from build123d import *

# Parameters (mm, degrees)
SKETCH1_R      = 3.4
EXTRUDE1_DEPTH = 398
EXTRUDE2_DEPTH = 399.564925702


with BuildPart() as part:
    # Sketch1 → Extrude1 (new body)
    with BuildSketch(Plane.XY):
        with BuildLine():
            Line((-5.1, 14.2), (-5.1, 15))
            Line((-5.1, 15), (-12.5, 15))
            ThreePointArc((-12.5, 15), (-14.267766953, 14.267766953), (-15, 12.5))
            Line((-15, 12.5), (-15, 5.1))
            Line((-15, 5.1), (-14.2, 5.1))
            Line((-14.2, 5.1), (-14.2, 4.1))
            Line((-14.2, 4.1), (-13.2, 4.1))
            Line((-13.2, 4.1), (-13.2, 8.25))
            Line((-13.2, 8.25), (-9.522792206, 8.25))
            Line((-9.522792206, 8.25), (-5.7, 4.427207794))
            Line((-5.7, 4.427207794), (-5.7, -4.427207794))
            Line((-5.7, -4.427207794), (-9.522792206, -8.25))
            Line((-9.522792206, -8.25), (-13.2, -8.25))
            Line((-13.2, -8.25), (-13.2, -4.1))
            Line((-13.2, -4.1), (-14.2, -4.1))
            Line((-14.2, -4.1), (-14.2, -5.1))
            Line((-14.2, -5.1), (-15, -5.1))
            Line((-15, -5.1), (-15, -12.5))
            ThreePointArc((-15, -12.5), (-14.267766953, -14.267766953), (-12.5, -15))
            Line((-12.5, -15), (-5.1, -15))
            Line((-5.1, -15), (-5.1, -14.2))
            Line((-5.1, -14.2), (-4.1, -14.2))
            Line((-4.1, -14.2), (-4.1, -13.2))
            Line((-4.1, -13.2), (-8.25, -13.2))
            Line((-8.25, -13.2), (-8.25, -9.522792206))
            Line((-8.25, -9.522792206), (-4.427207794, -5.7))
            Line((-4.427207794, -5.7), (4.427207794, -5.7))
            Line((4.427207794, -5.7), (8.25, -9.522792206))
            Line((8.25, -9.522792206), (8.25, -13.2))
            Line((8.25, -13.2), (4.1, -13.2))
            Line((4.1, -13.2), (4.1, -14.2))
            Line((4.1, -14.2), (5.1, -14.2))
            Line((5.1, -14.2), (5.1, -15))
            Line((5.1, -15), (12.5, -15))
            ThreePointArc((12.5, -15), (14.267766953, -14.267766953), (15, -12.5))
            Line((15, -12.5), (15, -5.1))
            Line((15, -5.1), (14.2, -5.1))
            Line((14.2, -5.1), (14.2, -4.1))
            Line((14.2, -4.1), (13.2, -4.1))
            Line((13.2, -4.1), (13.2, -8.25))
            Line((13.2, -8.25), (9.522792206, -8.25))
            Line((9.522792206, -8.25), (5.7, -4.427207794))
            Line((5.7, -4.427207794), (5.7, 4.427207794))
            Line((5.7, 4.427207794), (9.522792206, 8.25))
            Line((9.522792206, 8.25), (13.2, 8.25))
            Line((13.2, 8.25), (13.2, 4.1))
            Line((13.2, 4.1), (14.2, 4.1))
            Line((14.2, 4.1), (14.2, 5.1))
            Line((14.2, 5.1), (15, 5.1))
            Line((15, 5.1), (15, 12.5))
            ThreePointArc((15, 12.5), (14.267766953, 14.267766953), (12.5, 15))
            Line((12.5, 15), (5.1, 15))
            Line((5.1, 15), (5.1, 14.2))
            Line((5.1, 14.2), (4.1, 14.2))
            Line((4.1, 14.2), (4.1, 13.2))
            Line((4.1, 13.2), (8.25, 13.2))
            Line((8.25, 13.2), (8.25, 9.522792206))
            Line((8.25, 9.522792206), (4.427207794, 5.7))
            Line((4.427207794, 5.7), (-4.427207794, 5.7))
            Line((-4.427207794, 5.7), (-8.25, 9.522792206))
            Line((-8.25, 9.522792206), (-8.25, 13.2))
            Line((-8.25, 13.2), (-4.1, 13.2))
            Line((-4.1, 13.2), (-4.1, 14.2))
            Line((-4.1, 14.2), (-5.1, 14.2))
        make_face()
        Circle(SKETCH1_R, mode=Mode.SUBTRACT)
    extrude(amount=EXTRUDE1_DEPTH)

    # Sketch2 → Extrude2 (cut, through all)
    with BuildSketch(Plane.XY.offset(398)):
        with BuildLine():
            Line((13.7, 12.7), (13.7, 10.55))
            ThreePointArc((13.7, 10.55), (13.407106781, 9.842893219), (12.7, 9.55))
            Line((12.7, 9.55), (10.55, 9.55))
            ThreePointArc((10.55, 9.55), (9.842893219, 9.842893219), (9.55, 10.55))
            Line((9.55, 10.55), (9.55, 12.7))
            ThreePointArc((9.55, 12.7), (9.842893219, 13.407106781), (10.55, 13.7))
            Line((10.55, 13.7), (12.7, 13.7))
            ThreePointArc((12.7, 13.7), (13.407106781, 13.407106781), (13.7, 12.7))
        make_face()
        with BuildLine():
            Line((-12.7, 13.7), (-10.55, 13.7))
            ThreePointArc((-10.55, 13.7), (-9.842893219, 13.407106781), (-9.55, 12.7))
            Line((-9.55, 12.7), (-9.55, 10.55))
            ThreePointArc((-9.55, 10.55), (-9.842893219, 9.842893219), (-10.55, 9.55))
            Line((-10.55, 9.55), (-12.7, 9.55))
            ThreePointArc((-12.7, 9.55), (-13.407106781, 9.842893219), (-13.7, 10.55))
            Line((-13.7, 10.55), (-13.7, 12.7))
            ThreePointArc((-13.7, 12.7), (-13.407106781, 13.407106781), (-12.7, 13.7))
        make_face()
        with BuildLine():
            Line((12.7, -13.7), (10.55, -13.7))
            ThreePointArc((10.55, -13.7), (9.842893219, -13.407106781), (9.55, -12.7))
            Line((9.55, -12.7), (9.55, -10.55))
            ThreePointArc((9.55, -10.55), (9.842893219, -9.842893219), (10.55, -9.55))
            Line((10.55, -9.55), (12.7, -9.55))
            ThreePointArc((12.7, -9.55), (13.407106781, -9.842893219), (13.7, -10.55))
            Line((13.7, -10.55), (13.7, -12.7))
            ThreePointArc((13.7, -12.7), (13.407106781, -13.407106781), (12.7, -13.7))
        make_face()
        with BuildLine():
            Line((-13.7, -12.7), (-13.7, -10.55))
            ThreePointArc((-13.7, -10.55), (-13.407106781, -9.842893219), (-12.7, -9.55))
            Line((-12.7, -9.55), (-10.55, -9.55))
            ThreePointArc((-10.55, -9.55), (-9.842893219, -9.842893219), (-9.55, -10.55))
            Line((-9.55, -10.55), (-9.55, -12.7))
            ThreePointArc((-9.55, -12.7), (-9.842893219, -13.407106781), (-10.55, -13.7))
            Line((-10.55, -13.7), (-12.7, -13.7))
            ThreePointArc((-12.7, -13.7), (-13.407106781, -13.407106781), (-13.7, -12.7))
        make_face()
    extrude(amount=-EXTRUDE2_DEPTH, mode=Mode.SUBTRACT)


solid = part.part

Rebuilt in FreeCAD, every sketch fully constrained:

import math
import FreeCAD as App
import Part
import Sketcher

V = App.Vector
Q = App.Units.Quantity

doc = App.newDocument("Part")
body = doc.addObject("PartDesign::Body", "Body")

# Sketch on XY plane
sketch1 = body.newObject("Sketcher::SketchObject", "Sketch")
sketch1.AttachmentSupport = (doc.getObject("XY_Plane"), [""])
sketch1.MapMode = "FlatFace"
sketch1.addGeometry([
    Part.LineSegment(V(-5.1, 14.2, 0), V(-5.1, 15, 0)),  # 0
    Part.LineSegment(V(-5.1, 15, 0), V(-12.5, 15, 0)),  # 1
    Part.ArcOfCircle(Part.Circle(V(-12.5, 12.5, 0), V(0, 0, 1), 2.5), math.radians(90), math.radians(180)),  # 2
    Part.LineSegment(V(-15, 12.5, 0), V(-15, 5.1, 0)),  # 3
    Part.LineSegment(V(-15, 5.1, 0), V(-14.2, 5.1, 0)),  # 4
    Part.LineSegment(V(-14.2, 5.1, 0), V(-14.2, 4.1, 0)),  # 5
    Part.LineSegment(V(-14.2, 4.1, 0), V(-13.2, 4.1, 0)),  # 6
    Part.LineSegment(V(-13.2, 4.1, 0), V(-13.2, 8.2, 0)),  # 7
    Part.LineSegment(V(-13.2, 8.2, 0), V(-9.5, 8.2, 0)),  # 8
    Part.LineSegment(V(-9.5, 8.2, 0), V(-5.7, 4.4, 0)),  # 9
    Part.LineSegment(V(-5.7, 4.4, 0), V(-5.7, -4.4, 0)),  # 10
    Part.LineSegment(V(-5.7, -4.4, 0), V(-9.5, -8.2, 0)),  # 11
    Part.LineSegment(V(-9.5, -8.2, 0), V(-13.2, -8.2, 0)),  # 12
    Part.LineSegment(V(-13.2, -8.2, 0), V(-13.2, -4.1, 0)),  # 13
    Part.LineSegment(V(-13.2, -4.1, 0), V(-14.2, -4.1, 0)),  # 14
    Part.LineSegment(V(-14.2, -4.1, 0), V(-14.2, -5.1, 0)),  # 15
    Part.LineSegment(V(-14.2, -5.1, 0), V(-15, -5.1, 0)),  # 16
    Part.LineSegment(V(-15, -5.1, 0), V(-15, -12.5, 0)),  # 17
    Part.ArcOfCircle(Part.Circle(V(-12.5, -12.5, 0), V(0, 0, 1), 2.5), math.radians(180), math.radians(270)),  # 18
    Part.LineSegment(V(-12.5, -15, 0), V(-5.1, -15, 0)),  # 19
    Part.LineSegment(V(-5.1, -15, 0), V(-5.1, -14.2, 0)),  # 20
    Part.LineSegment(V(-5.1, -14.2, 0), V(-4.1, -14.2, 0)),  # 21
    Part.LineSegment(V(-4.1, -14.2, 0), V(-4.1, -13.2, 0)),  # 22
    Part.LineSegment(V(-4.1, -13.2, 0), V(-8.2, -13.2, 0)),  # 23
    Part.LineSegment(V(-8.2, -13.2, 0), V(-8.2, -9.5, 0)),  # 24
    Part.LineSegment(V(-8.2, -9.5, 0), V(-4.4, -5.7, 0)),  # 25
    Part.LineSegment(V(-4.4, -5.7, 0), V(4.4, -5.7, 0)),  # 26
    Part.LineSegment(V(4.4, -5.7, 0), V(8.2, -9.5, 0)),  # 27
    Part.LineSegment(V(8.2, -9.5, 0), V(8.2, -13.2, 0)),  # 28
    Part.LineSegment(V(8.2, -13.2, 0), V(4.1, -13.2, 0)),  # 29
    Part.LineSegment(V(4.1, -13.2, 0), V(4.1, -14.2, 0)),  # 30
    Part.LineSegment(V(4.1, -14.2, 0), V(5.1, -14.2, 0)),  # 31
    Part.LineSegment(V(5.1, -14.2, 0), V(5.1, -15, 0)),  # 32
    Part.LineSegment(V(5.1, -15, 0), V(12.5, -15, 0)),  # 33
    Part.ArcOfCircle(Part.Circle(V(12.5, -12.5, 0), V(0, 0, 1), 2.5), math.radians(-90), math.radians(0)),  # 34
    Part.LineSegment(V(15, -12.5, 0), V(15, -5.1, 0)),  # 35
    Part.LineSegment(V(15, -5.1, 0), V(14.2, -5.1, 0)),  # 36
    Part.LineSegment(V(14.2, -5.1, 0), V(14.2, -4.1, 0)),  # 37
    Part.LineSegment(V(14.2, -4.1, 0), V(13.2, -4.1, 0)),  # 38
    Part.LineSegment(V(13.2, -4.1, 0), V(13.2, -8.2, 0)),  # 39
    Part.LineSegment(V(13.2, -8.2, 0), V(9.5, -8.2, 0)),  # 40
    Part.LineSegment(V(9.5, -8.2, 0), V(5.7, -4.4, 0)),  # 41
    Part.LineSegment(V(5.7, -4.4, 0), V(5.7, 4.4, 0)),  # 42
    Part.LineSegment(V(5.7, 4.4, 0), V(9.5, 8.2, 0)),  # 43
    Part.LineSegment(V(9.5, 8.2, 0), V(13.2, 8.2, 0)),  # 44
    Part.LineSegment(V(13.2, 8.2, 0), V(13.2, 4.1, 0)),  # 45
    Part.LineSegment(V(13.2, 4.1, 0), V(14.2, 4.1, 0)),  # 46
    Part.LineSegment(V(14.2, 4.1, 0), V(14.2, 5.1, 0)),  # 47
    Part.LineSegment(V(14.2, 5.1, 0), V(15, 5.1, 0)),  # 48
    Part.LineSegment(V(15, 5.1, 0), V(15, 12.5, 0)),  # 49
    Part.ArcOfCircle(Part.Circle(V(12.5, 12.5, 0), V(0, 0, 1), 2.5), math.radians(0), math.radians(90)),  # 50
    Part.LineSegment(V(12.5, 15, 0), V(5.1, 15, 0)),  # 51
    Part.LineSegment(V(5.1, 15, 0), V(5.1, 14.2, 0)),  # 52
    Part.LineSegment(V(5.1, 14.2, 0), V(4.1, 14.2, 0)),  # 53
    Part.LineSegment(V(4.1, 14.2, 0), V(4.1, 13.2, 0)),  # 54
    Part.LineSegment(V(4.1, 13.2, 0), V(8.2, 13.2, 0)),  # 55
    Part.LineSegment(V(8.2, 13.2, 0), V(8.2, 9.5, 0)),  # 56
    Part.LineSegment(V(8.2, 9.5, 0), V(4.4, 5.7, 0)),  # 57
    Part.LineSegment(V(4.4, 5.7, 0), V(-4.4, 5.7, 0)),  # 58
    Part.LineSegment(V(-4.4, 5.7, 0), V(-8.2, 9.5, 0)),  # 59
    Part.LineSegment(V(-8.2, 9.5, 0), V(-8.2, 13.2, 0)),  # 60
    Part.LineSegment(V(-8.2, 13.2, 0), V(-4.1, 13.2, 0)),  # 61
    Part.LineSegment(V(-4.1, 13.2, 0), V(-4.1, 14.2, 0)),  # 62
    Part.LineSegment(V(-4.1, 14.2, 0), V(-5.1, 14.2, 0)),  # 63
    Part.Circle(V(0, 0, 0), V(0, 0, 1), 3.4),  # 64
], False)
sketch1.addConstraint([
    Sketcher.Constraint("Coincident", 0, 2, 1, 1),
    Sketcher.Constraint("Tangent", 1, 2, 2, 1),
    Sketcher.Constraint("Tangent", 2, 2, 3, 1),
    Sketcher.Constraint("Coincident", 3, 2, 4, 1),
    Sketcher.Constraint("Coincident", 4, 2, 5, 1),
    Sketcher.Constraint("Coincident", 5, 2, 6, 1),
    Sketcher.Constraint("Coincident", 6, 2, 7, 1),
    Sketcher.Constraint("Coincident", 7, 2, 8, 1),
    Sketcher.Constraint("Coincident", 8, 2, 9, 1),
    Sketcher.Constraint("Coincident", 9, 2, 10, 1),
    Sketcher.Constraint("Coincident", 10, 2, 11, 1),
    Sketcher.Constraint("Coincident", 11, 2, 12, 1),
    Sketcher.Constraint("Coincident", 12, 2, 13, 1),
    Sketcher.Constraint("Coincident", 13, 2, 14, 1),
    Sketcher.Constraint("Coincident", 14, 2, 15, 1),
    Sketcher.Constraint("Coincident", 15, 2, 16, 1),
    Sketcher.Constraint("Coincident", 16, 2, 17, 1),
    Sketcher.Constraint("Tangent", 17, 2, 18, 1),
    Sketcher.Constraint("Tangent", 18, 2, 19, 1),
    Sketcher.Constraint("Coincident", 19, 2, 20, 1),
    Sketcher.Constraint("Coincident", 20, 2, 21, 1),
    Sketcher.Constraint("Coincident", 21, 2, 22, 1),
    Sketcher.Constraint("Coincident", 22, 2, 23, 1),
    Sketcher.Constraint("Coincident", 23, 2, 24, 1),
    Sketcher.Constraint("Coincident", 24, 2, 25, 1),
    Sketcher.Constraint("Coincident", 25, 2, 26, 1),
    Sketcher.Constraint("Coincident", 26, 2, 27, 1),
    Sketcher.Constraint("Coincident", 27, 2, 28, 1),
    Sketcher.Constraint("Coincident", 28, 2, 29, 1),
    Sketcher.Constraint("Coincident", 29, 2, 30, 1),
    Sketcher.Constraint("Coincident", 30, 2, 31, 1),
    Sketcher.Constraint("Coincident", 31, 2, 32, 1),
    Sketcher.Constraint("Coincident", 32, 2, 33, 1),
    Sketcher.Constraint("Tangent", 33, 2, 34, 1),
    Sketcher.Constraint("Tangent", 34, 2, 35, 1),
    Sketcher.Constraint("Coincident", 35, 2, 36, 1),
    Sketcher.Constraint("Coincident", 36, 2, 37, 1),
    Sketcher.Constraint("Coincident", 37, 2, 38, 1),
    Sketcher.Constraint("Coincident", 38, 2, 39, 1),
    Sketcher.Constraint("Coincident", 39, 2, 40, 1),
    Sketcher.Constraint("Coincident", 40, 2, 41, 1),
    Sketcher.Constraint("Coincident", 41, 2, 42, 1),
    Sketcher.Constraint("Coincident", 42, 2, 43, 1),
    Sketcher.Constraint("Coincident", 43, 2, 44, 1),
    Sketcher.Constraint("Coincident", 44, 2, 45, 1),
    Sketcher.Constraint("Coincident", 45, 2, 46, 1),
    Sketcher.Constraint("Coincident", 46, 2, 47, 1),
    Sketcher.Constraint("Coincident", 47, 2, 48, 1),
    Sketcher.Constraint("Coincident", 48, 2, 49, 1),
    Sketcher.Constraint("Tangent", 49, 2, 50, 1),
    Sketcher.Constraint("Tangent", 50, 2, 51, 1),
    Sketcher.Constraint("Coincident", 51, 2, 52, 1),
    Sketcher.Constraint("Coincident", 52, 2, 53, 1),
    Sketcher.Constraint("Coincident", 53, 2, 54, 1),
    Sketcher.Constraint("Coincident", 54, 2, 55, 1),
    Sketcher.Constraint("Coincident", 55, 2, 56, 1),
    Sketcher.Constraint("Coincident", 56, 2, 57, 1),
    Sketcher.Constraint("Coincident", 57, 2, 58, 1),
    Sketcher.Constraint("Coincident", 58, 2, 59, 1),
    Sketcher.Constraint("Coincident", 59, 2, 60, 1),
    Sketcher.Constraint("Coincident", 60, 2, 61, 1),
    Sketcher.Constraint("Coincident", 61, 2, 62, 1),
    Sketcher.Constraint("Coincident", 62, 2, 63, 1),
    Sketcher.Constraint("Coincident", 63, 2, 0, 1),
    Sketcher.Constraint("Vertical", 0),
    Sketcher.Constraint("Horizontal", 1),
    Sketcher.Constraint("Vertical", 3),
    Sketcher.Constraint("Horizontal", 4),
    Sketcher.Constraint("Vertical", 5),
    Sketcher.Constraint("Horizontal", 6),
    Sketcher.Constraint("Vertical", 7),
    Sketcher.Constraint("Horizontal", 8),
    Sketcher.Constraint("Vertical", 10),
    Sketcher.Constraint("Horizontal", 12),
    Sketcher.Constraint("Vertical", 13),
    Sketcher.Constraint("Horizontal", 14),
    Sketcher.Constraint("Vertical", 15),
    Sketcher.Constraint("Horizontal", 16),
    Sketcher.Constraint("Vertical", 17),
    Sketcher.Constraint("Horizontal", 19),
    Sketcher.Constraint("Vertical", 20),
    Sketcher.Constraint("Horizontal", 21),
    Sketcher.Constraint("Vertical", 22),
    Sketcher.Constraint("Horizontal", 23),
    Sketcher.Constraint("Vertical", 24),
    Sketcher.Constraint("Horizontal", 26),
    Sketcher.Constraint("Vertical", 28),
    Sketcher.Constraint("Horizontal", 29),
    Sketcher.Constraint("Vertical", 30),
    Sketcher.Constraint("Horizontal", 31),
    Sketcher.Constraint("Vertical", 32),
    Sketcher.Constraint("Horizontal", 33),
    Sketcher.Constraint("Vertical", 35),
    Sketcher.Constraint("Horizontal", 36),
    Sketcher.Constraint("Vertical", 37),
    Sketcher.Constraint("Horizontal", 38),
    Sketcher.Constraint("Vertical", 39),
    Sketcher.Constraint("Horizontal", 40),
    Sketcher.Constraint("Vertical", 42),
    Sketcher.Constraint("Horizontal", 44),
    Sketcher.Constraint("Vertical", 45),
    Sketcher.Constraint("Horizontal", 46),
    Sketcher.Constraint("Vertical", 47),
    Sketcher.Constraint("Horizontal", 48),
    Sketcher.Constraint("Vertical", 49),
    Sketcher.Constraint("Horizontal", 51),
    Sketcher.Constraint("Vertical", 52),
    Sketcher.Constraint("Horizontal", 53),
    Sketcher.Constraint("Vertical", 54),
    Sketcher.Constraint("Horizontal", 55),
    Sketcher.Constraint("Vertical", 56),
    Sketcher.Constraint("Horizontal", 58),
    Sketcher.Constraint("Vertical", 60),
    Sketcher.Constraint("Horizontal", 61),
    Sketcher.Constraint("Vertical", 62),
    Sketcher.Constraint("Horizontal", 63),
    Sketcher.Constraint("Coincident", 64, 3, -1, 1),
    Sketcher.Constraint("Equal", 2, 18),
    Sketcher.Constraint("Equal", 18, 34),
    Sketcher.Constraint("Equal", 34, 50),
    Sketcher.Constraint("Symmetric", 2, 3, 34, 3, -1, 1),
    Sketcher.Constraint("Symmetric", 18, 3, 50, 3, -1, 1),
    Sketcher.Constraint("Symmetric", 4, 2, 36, 2, -1, 1),
    Sketcher.Constraint("Symmetric", 6, 2, 38, 2, -1, 1),
    Sketcher.Constraint("Symmetric", 8, 2, 40, 2, -1, 1),
    Sketcher.Constraint("Symmetric", 9, 2, 41, 2, -1, 1),
    Sketcher.Constraint("Symmetric", 11, 2, 43, 2, -1, 1),
    Sketcher.Constraint("Symmetric", 13, 2, 45, 2, -1, 1),
    Sketcher.Constraint("Symmetric", 15, 2, 47, 2, -1, 1),
    Sketcher.Constraint("Symmetric", 20, 2, 52, 2, -1, 1),
    Sketcher.Constraint("Symmetric", 22, 2, 54, 2, -1, 1),
    Sketcher.Constraint("Symmetric", 24, 2, 56, 2, -1, 1),
    Sketcher.Constraint("Symmetric", 25, 2, 57, 2, -1, 1),
    Sketcher.Constraint("Symmetric", 27, 2, 59, 2, -1, 1),
    Sketcher.Constraint("Symmetric", 29, 2, 61, 2, -1, 1),
    Sketcher.Constraint("Symmetric", 31, 2, 63, 2, -1, 1),
    Sketcher.Constraint("Symmetric", 18, 3, 34, 3, -2),
    Sketcher.Constraint("Symmetric", 24, 2, 27, 2, -2),
    Sketcher.Constraint("Symmetric", 22, 2, 29, 2, -2),
    Sketcher.Constraint("Symmetric", 20, 2, 31, 2, -2),
    Sketcher.Constraint("Symmetric", 15, 2, 36, 2, -2),
    Sketcher.Constraint("Symmetric", 13, 2, 38, 2, -2),
    Sketcher.Constraint("Symmetric", 11, 2, 40, 2, -2),
    Sketcher.Constraint("Perpendicular", 9, 11),
    Sketcher.Constraint("Parallel", 11, 25),
    Sketcher.Constraint("Perpendicular", 25, 27),
    Sketcher.Constraint("Perpendicular", 41, 43),
    Sketcher.Constraint("Perpendicular", 57, 59),
    Sketcher.Constraint("Horizontal", 10, 2, 41, 2),
    Sketcher.Constraint("Equal", 14, 21),
    Sketcher.Constraint("Equal", 48, 0),
    Sketcher.Constraint("Equal", 51, 3),
    Sketcher.Constraint("Equal", 63, 5),
    Sketcher.Constraint("Equal", 61, 7),
    Sketcher.Constraint("Equal", 58, 10),
    Sketcher.Constraint("Equal", 15, 22),
    Sketcher.Constraint("Equal", 44, 24),
    Sketcher.Constraint("Equal", 11, 25),
    Sketcher.Constraint("Diameter", 64, Q("6.8 mm")),
    Sketcher.Constraint("Radius", 2, Q("2.5 mm")),
    Sketcher.Constraint("DistanceX", 6, 1, 6, 2, Q("1 mm")),
    Sketcher.Constraint("DistanceX", 1, 2, 1, 1, Q("7.4 mm")),
    Sketcher.Constraint("DistanceX", 4, 1, 4, 2, Q("0.8 mm")),
    Sketcher.Constraint("DistanceY", -1, 1, 0, 2, Q("15 mm")),
    Sketcher.Constraint("DistanceX", 23, 2, 23, 1, Q("4.15 mm")),
    Sketcher.Constraint("DistanceX", 9, 2, -1, 1, Q("5.7 mm")),
    Sketcher.Constraint("DistanceX", 8, 1, 8, 2, Q("3.677208 mm")),
])
pad1 = body.newObject("PartDesign::Pad", "Pad")
pad1.Profile = sketch1
pad1.Length = 398

# Sketch on XY plane
sketch2 = body.newObject("Sketcher::SketchObject", "Sketch001")
sketch2.AttachmentSupport = (doc.getObject("XY_Plane"), [""])
sketch2.MapMode = "FlatFace"
sketch2.AttachmentOffset = App.Placement(V(0, 0, 398), App.Rotation())
sketch2.addGeometry([
    Part.LineSegment(V(13.7, 10.6, 0), V(13.7, 12.7, 0)),  # 0
    Part.ArcOfCircle(Part.Circle(V(12.7, 12.7, 0), V(0, 0, 1), 1), math.radians(0), math.radians(90)),  # 1
    Part.LineSegment(V(12.7, 13.7, 0), V(10.6, 13.7, 0)),  # 2
    Part.ArcOfCircle(Part.Circle(V(10.6, 12.7, 0), V(0, 0, 1), 1), math.radians(90), math.radians(180)),  # 3
    Part.LineSegment(V(9.6, 12.7, 0), V(9.6, 10.6, 0)),  # 4
    Part.ArcOfCircle(Part.Circle(V(10.6, 10.6, 0), V(0, 0, 1), 1), math.radians(-180), math.radians(-90)),  # 5
    Part.LineSegment(V(10.6, 9.6, 0), V(12.7, 9.6, 0)),  # 6
    Part.ArcOfCircle(Part.Circle(V(12.7, 10.6, 0), V(0, 0, 1), 1), math.radians(-90), math.radians(0)),  # 7
    Part.LineSegment(V(-10.6, 13.7, 0), V(-12.7, 13.7, 0)),  # 8
    Part.ArcOfCircle(Part.Circle(V(-12.7, 12.7, 0), V(0, 0, 1), 1), math.radians(90), math.radians(180)),  # 9
    Part.LineSegment(V(-13.7, 12.7, 0), V(-13.7, 10.6, 0)),  # 10
    Part.ArcOfCircle(Part.Circle(V(-12.7, 10.6, 0), V(0, 0, 1), 1), math.radians(-180), math.radians(-90)),  # 11
    Part.LineSegment(V(-12.7, 9.6, 0), V(-10.6, 9.6, 0)),  # 12
    Part.ArcOfCircle(Part.Circle(V(-10.6, 10.6, 0), V(0, 0, 1), 1), math.radians(-90), math.radians(0)),  # 13
    Part.LineSegment(V(-9.6, 10.6, 0), V(-9.6, 12.7, 0)),  # 14
    Part.ArcOfCircle(Part.Circle(V(-10.6, 12.7, 0), V(0, 0, 1), 1), math.radians(0), math.radians(90)),  # 15
    Part.LineSegment(V(10.6, -13.7, 0), V(12.7, -13.7, 0)),  # 16
    Part.ArcOfCircle(Part.Circle(V(12.7, -12.7, 0), V(0, 0, 1), 1), math.radians(-90), math.radians(0)),  # 17
    Part.LineSegment(V(13.7, -12.7, 0), V(13.7, -10.6, 0)),  # 18
    Part.ArcOfCircle(Part.Circle(V(12.7, -10.6, 0), V(0, 0, 1), 1), math.radians(0), math.radians(90)),  # 19
    Part.LineSegment(V(12.7, -9.6, 0), V(10.6, -9.6, 0)),  # 20
    Part.ArcOfCircle(Part.Circle(V(10.6, -10.6, 0), V(0, 0, 1), 1), math.radians(90), math.radians(180)),  # 21
    Part.LineSegment(V(9.6, -10.6, 0), V(9.6, -12.7, 0)),  # 22
    Part.ArcOfCircle(Part.Circle(V(10.6, -12.7, 0), V(0, 0, 1), 1), math.radians(-180), math.radians(-90)),  # 23
    Part.LineSegment(V(-13.7, -10.6, 0), V(-13.7, -12.7, 0)),  # 24
    Part.ArcOfCircle(Part.Circle(V(-12.7, -12.7, 0), V(0, 0, 1), 1), math.radians(-180), math.radians(-90)),  # 25
    Part.LineSegment(V(-12.7, -13.7, 0), V(-10.6, -13.7, 0)),  # 26
    Part.ArcOfCircle(Part.Circle(V(-10.6, -12.7, 0), V(0, 0, 1), 1), math.radians(-90), math.radians(0)),  # 27
    Part.LineSegment(V(-9.6, -12.7, 0), V(-9.6, -10.6, 0)),  # 28
    Part.ArcOfCircle(Part.Circle(V(-10.6, -10.6, 0), V(0, 0, 1), 1), math.radians(0), math.radians(90)),  # 29
    Part.LineSegment(V(-10.6, -9.6, 0), V(-12.7, -9.6, 0)),  # 30
    Part.ArcOfCircle(Part.Circle(V(-12.7, -10.6, 0), V(0, 0, 1), 1), math.radians(90), math.radians(180)),  # 31
], False)
sketch2.addConstraint([
    Sketcher.Constraint("Tangent", 0, 2, 1, 1),
    Sketcher.Constraint("Tangent", 1, 2, 2, 1),
    Sketcher.Constraint("Tangent", 2, 2, 3, 1),
    Sketcher.Constraint("Tangent", 3, 2, 4, 1),
    Sketcher.Constraint("Tangent", 4, 2, 5, 1),
    Sketcher.Constraint("Tangent", 5, 2, 6, 1),
    Sketcher.Constraint("Tangent", 6, 2, 7, 1),
    Sketcher.Constraint("Tangent", 7, 2, 0, 1),
    Sketcher.Constraint("Tangent", 8, 2, 9, 1),
    Sketcher.Constraint("Tangent", 9, 2, 10, 1),
    Sketcher.Constraint("Tangent", 10, 2, 11, 1),
    Sketcher.Constraint("Tangent", 11, 2, 12, 1),
    Sketcher.Constraint("Tangent", 12, 2, 13, 1),
    Sketcher.Constraint("Tangent", 13, 2, 14, 1),
    Sketcher.Constraint("Tangent", 14, 2, 15, 1),
    Sketcher.Constraint("Tangent", 15, 2, 8, 1),
    Sketcher.Constraint("Tangent", 16, 2, 17, 1),
    Sketcher.Constraint("Tangent", 17, 2, 18, 1),
    Sketcher.Constraint("Tangent", 18, 2, 19, 1),
    Sketcher.Constraint("Tangent", 19, 2, 20, 1),
    Sketcher.Constraint("Tangent", 20, 2, 21, 1),
    Sketcher.Constraint("Tangent", 21, 2, 22, 1),
    Sketcher.Constraint("Tangent", 22, 2, 23, 1),
    Sketcher.Constraint("Tangent", 23, 2, 16, 1),
    Sketcher.Constraint("Tangent", 24, 2, 25, 1),
    Sketcher.Constraint("Tangent", 25, 2, 26, 1),
    Sketcher.Constraint("Tangent", 26, 2, 27, 1),
    Sketcher.Constraint("Tangent", 27, 2, 28, 1),
    Sketcher.Constraint("Tangent", 28, 2, 29, 1),
    Sketcher.Constraint("Tangent", 29, 2, 30, 1),
    Sketcher.Constraint("Tangent", 30, 2, 31, 1),
    Sketcher.Constraint("Tangent", 31, 2, 24, 1),
    Sketcher.Constraint("Vertical", 0),
    Sketcher.Constraint("Horizontal", 2),
    Sketcher.Constraint("Vertical", 4),
    Sketcher.Constraint("Horizontal", 6),
    Sketcher.Constraint("Horizontal", 8),
    Sketcher.Constraint("Vertical", 10),
    Sketcher.Constraint("Horizontal", 12),
    Sketcher.Constraint("Vertical", 14),
    Sketcher.Constraint("Horizontal", 16),
    Sketcher.Constraint("Vertical", 18),
    Sketcher.Constraint("Horizontal", 20),
    Sketcher.Constraint("Vertical", 22),
    Sketcher.Constraint("Vertical", 24),
    Sketcher.Constraint("Horizontal", 26),
    Sketcher.Constraint("Vertical", 28),
    Sketcher.Constraint("Horizontal", 30),
    Sketcher.Constraint("Equal", 1, 3),
    Sketcher.Constraint("Equal", 3, 5),
    Sketcher.Constraint("Equal", 5, 7),
    Sketcher.Constraint("Equal", 7, 9),
    Sketcher.Constraint("Equal", 9, 11),
    Sketcher.Constraint("Equal", 11, 13),
    Sketcher.Constraint("Equal", 13, 15),
    Sketcher.Constraint("Equal", 15, 17),
    Sketcher.Constraint("Equal", 17, 19),
    Sketcher.Constraint("Equal", 19, 21),
    Sketcher.Constraint("Equal", 21, 23),
    Sketcher.Constraint("Equal", 23, 25),
    Sketcher.Constraint("Equal", 25, 27),
    Sketcher.Constraint("Equal", 27, 29),
    Sketcher.Constraint("Equal", 29, 31),
    Sketcher.Constraint("Symmetric", 9, 3, 17, 3, -1, 1),
    Sketcher.Constraint("Symmetric", 13, 3, 21, 3, -1, 1),
    Sketcher.Constraint("Symmetric", 1, 3, 25, 3, -1, 1),
    Sketcher.Constraint("Symmetric", 5, 3, 29, 3, -1, 1),
    Sketcher.Constraint("Symmetric", 1, 3, 9, 3, -2),
    Sketcher.Constraint("Symmetric", 5, 3, 13, 3, -2),
    Sketcher.Constraint("Equal", 30, 0),
    Sketcher.Constraint("Radius", 1, Q("1 mm")),
    Sketcher.Constraint("DistanceX", 2, 2, 2, 1, Q("2.15 mm")),
    Sketcher.Constraint("DistanceX", -1, 1, 1, 3, Q("12.7 mm")),
    Sketcher.Constraint("DistanceY", -1, 1, 1, 3, Q("12.7 mm")),
])
pocket1 = body.newObject("PartDesign::Pocket", "Pocket")
pocket1.Profile = sketch2
pocket1.Type = "ThroughAll"

doc.recompute()
